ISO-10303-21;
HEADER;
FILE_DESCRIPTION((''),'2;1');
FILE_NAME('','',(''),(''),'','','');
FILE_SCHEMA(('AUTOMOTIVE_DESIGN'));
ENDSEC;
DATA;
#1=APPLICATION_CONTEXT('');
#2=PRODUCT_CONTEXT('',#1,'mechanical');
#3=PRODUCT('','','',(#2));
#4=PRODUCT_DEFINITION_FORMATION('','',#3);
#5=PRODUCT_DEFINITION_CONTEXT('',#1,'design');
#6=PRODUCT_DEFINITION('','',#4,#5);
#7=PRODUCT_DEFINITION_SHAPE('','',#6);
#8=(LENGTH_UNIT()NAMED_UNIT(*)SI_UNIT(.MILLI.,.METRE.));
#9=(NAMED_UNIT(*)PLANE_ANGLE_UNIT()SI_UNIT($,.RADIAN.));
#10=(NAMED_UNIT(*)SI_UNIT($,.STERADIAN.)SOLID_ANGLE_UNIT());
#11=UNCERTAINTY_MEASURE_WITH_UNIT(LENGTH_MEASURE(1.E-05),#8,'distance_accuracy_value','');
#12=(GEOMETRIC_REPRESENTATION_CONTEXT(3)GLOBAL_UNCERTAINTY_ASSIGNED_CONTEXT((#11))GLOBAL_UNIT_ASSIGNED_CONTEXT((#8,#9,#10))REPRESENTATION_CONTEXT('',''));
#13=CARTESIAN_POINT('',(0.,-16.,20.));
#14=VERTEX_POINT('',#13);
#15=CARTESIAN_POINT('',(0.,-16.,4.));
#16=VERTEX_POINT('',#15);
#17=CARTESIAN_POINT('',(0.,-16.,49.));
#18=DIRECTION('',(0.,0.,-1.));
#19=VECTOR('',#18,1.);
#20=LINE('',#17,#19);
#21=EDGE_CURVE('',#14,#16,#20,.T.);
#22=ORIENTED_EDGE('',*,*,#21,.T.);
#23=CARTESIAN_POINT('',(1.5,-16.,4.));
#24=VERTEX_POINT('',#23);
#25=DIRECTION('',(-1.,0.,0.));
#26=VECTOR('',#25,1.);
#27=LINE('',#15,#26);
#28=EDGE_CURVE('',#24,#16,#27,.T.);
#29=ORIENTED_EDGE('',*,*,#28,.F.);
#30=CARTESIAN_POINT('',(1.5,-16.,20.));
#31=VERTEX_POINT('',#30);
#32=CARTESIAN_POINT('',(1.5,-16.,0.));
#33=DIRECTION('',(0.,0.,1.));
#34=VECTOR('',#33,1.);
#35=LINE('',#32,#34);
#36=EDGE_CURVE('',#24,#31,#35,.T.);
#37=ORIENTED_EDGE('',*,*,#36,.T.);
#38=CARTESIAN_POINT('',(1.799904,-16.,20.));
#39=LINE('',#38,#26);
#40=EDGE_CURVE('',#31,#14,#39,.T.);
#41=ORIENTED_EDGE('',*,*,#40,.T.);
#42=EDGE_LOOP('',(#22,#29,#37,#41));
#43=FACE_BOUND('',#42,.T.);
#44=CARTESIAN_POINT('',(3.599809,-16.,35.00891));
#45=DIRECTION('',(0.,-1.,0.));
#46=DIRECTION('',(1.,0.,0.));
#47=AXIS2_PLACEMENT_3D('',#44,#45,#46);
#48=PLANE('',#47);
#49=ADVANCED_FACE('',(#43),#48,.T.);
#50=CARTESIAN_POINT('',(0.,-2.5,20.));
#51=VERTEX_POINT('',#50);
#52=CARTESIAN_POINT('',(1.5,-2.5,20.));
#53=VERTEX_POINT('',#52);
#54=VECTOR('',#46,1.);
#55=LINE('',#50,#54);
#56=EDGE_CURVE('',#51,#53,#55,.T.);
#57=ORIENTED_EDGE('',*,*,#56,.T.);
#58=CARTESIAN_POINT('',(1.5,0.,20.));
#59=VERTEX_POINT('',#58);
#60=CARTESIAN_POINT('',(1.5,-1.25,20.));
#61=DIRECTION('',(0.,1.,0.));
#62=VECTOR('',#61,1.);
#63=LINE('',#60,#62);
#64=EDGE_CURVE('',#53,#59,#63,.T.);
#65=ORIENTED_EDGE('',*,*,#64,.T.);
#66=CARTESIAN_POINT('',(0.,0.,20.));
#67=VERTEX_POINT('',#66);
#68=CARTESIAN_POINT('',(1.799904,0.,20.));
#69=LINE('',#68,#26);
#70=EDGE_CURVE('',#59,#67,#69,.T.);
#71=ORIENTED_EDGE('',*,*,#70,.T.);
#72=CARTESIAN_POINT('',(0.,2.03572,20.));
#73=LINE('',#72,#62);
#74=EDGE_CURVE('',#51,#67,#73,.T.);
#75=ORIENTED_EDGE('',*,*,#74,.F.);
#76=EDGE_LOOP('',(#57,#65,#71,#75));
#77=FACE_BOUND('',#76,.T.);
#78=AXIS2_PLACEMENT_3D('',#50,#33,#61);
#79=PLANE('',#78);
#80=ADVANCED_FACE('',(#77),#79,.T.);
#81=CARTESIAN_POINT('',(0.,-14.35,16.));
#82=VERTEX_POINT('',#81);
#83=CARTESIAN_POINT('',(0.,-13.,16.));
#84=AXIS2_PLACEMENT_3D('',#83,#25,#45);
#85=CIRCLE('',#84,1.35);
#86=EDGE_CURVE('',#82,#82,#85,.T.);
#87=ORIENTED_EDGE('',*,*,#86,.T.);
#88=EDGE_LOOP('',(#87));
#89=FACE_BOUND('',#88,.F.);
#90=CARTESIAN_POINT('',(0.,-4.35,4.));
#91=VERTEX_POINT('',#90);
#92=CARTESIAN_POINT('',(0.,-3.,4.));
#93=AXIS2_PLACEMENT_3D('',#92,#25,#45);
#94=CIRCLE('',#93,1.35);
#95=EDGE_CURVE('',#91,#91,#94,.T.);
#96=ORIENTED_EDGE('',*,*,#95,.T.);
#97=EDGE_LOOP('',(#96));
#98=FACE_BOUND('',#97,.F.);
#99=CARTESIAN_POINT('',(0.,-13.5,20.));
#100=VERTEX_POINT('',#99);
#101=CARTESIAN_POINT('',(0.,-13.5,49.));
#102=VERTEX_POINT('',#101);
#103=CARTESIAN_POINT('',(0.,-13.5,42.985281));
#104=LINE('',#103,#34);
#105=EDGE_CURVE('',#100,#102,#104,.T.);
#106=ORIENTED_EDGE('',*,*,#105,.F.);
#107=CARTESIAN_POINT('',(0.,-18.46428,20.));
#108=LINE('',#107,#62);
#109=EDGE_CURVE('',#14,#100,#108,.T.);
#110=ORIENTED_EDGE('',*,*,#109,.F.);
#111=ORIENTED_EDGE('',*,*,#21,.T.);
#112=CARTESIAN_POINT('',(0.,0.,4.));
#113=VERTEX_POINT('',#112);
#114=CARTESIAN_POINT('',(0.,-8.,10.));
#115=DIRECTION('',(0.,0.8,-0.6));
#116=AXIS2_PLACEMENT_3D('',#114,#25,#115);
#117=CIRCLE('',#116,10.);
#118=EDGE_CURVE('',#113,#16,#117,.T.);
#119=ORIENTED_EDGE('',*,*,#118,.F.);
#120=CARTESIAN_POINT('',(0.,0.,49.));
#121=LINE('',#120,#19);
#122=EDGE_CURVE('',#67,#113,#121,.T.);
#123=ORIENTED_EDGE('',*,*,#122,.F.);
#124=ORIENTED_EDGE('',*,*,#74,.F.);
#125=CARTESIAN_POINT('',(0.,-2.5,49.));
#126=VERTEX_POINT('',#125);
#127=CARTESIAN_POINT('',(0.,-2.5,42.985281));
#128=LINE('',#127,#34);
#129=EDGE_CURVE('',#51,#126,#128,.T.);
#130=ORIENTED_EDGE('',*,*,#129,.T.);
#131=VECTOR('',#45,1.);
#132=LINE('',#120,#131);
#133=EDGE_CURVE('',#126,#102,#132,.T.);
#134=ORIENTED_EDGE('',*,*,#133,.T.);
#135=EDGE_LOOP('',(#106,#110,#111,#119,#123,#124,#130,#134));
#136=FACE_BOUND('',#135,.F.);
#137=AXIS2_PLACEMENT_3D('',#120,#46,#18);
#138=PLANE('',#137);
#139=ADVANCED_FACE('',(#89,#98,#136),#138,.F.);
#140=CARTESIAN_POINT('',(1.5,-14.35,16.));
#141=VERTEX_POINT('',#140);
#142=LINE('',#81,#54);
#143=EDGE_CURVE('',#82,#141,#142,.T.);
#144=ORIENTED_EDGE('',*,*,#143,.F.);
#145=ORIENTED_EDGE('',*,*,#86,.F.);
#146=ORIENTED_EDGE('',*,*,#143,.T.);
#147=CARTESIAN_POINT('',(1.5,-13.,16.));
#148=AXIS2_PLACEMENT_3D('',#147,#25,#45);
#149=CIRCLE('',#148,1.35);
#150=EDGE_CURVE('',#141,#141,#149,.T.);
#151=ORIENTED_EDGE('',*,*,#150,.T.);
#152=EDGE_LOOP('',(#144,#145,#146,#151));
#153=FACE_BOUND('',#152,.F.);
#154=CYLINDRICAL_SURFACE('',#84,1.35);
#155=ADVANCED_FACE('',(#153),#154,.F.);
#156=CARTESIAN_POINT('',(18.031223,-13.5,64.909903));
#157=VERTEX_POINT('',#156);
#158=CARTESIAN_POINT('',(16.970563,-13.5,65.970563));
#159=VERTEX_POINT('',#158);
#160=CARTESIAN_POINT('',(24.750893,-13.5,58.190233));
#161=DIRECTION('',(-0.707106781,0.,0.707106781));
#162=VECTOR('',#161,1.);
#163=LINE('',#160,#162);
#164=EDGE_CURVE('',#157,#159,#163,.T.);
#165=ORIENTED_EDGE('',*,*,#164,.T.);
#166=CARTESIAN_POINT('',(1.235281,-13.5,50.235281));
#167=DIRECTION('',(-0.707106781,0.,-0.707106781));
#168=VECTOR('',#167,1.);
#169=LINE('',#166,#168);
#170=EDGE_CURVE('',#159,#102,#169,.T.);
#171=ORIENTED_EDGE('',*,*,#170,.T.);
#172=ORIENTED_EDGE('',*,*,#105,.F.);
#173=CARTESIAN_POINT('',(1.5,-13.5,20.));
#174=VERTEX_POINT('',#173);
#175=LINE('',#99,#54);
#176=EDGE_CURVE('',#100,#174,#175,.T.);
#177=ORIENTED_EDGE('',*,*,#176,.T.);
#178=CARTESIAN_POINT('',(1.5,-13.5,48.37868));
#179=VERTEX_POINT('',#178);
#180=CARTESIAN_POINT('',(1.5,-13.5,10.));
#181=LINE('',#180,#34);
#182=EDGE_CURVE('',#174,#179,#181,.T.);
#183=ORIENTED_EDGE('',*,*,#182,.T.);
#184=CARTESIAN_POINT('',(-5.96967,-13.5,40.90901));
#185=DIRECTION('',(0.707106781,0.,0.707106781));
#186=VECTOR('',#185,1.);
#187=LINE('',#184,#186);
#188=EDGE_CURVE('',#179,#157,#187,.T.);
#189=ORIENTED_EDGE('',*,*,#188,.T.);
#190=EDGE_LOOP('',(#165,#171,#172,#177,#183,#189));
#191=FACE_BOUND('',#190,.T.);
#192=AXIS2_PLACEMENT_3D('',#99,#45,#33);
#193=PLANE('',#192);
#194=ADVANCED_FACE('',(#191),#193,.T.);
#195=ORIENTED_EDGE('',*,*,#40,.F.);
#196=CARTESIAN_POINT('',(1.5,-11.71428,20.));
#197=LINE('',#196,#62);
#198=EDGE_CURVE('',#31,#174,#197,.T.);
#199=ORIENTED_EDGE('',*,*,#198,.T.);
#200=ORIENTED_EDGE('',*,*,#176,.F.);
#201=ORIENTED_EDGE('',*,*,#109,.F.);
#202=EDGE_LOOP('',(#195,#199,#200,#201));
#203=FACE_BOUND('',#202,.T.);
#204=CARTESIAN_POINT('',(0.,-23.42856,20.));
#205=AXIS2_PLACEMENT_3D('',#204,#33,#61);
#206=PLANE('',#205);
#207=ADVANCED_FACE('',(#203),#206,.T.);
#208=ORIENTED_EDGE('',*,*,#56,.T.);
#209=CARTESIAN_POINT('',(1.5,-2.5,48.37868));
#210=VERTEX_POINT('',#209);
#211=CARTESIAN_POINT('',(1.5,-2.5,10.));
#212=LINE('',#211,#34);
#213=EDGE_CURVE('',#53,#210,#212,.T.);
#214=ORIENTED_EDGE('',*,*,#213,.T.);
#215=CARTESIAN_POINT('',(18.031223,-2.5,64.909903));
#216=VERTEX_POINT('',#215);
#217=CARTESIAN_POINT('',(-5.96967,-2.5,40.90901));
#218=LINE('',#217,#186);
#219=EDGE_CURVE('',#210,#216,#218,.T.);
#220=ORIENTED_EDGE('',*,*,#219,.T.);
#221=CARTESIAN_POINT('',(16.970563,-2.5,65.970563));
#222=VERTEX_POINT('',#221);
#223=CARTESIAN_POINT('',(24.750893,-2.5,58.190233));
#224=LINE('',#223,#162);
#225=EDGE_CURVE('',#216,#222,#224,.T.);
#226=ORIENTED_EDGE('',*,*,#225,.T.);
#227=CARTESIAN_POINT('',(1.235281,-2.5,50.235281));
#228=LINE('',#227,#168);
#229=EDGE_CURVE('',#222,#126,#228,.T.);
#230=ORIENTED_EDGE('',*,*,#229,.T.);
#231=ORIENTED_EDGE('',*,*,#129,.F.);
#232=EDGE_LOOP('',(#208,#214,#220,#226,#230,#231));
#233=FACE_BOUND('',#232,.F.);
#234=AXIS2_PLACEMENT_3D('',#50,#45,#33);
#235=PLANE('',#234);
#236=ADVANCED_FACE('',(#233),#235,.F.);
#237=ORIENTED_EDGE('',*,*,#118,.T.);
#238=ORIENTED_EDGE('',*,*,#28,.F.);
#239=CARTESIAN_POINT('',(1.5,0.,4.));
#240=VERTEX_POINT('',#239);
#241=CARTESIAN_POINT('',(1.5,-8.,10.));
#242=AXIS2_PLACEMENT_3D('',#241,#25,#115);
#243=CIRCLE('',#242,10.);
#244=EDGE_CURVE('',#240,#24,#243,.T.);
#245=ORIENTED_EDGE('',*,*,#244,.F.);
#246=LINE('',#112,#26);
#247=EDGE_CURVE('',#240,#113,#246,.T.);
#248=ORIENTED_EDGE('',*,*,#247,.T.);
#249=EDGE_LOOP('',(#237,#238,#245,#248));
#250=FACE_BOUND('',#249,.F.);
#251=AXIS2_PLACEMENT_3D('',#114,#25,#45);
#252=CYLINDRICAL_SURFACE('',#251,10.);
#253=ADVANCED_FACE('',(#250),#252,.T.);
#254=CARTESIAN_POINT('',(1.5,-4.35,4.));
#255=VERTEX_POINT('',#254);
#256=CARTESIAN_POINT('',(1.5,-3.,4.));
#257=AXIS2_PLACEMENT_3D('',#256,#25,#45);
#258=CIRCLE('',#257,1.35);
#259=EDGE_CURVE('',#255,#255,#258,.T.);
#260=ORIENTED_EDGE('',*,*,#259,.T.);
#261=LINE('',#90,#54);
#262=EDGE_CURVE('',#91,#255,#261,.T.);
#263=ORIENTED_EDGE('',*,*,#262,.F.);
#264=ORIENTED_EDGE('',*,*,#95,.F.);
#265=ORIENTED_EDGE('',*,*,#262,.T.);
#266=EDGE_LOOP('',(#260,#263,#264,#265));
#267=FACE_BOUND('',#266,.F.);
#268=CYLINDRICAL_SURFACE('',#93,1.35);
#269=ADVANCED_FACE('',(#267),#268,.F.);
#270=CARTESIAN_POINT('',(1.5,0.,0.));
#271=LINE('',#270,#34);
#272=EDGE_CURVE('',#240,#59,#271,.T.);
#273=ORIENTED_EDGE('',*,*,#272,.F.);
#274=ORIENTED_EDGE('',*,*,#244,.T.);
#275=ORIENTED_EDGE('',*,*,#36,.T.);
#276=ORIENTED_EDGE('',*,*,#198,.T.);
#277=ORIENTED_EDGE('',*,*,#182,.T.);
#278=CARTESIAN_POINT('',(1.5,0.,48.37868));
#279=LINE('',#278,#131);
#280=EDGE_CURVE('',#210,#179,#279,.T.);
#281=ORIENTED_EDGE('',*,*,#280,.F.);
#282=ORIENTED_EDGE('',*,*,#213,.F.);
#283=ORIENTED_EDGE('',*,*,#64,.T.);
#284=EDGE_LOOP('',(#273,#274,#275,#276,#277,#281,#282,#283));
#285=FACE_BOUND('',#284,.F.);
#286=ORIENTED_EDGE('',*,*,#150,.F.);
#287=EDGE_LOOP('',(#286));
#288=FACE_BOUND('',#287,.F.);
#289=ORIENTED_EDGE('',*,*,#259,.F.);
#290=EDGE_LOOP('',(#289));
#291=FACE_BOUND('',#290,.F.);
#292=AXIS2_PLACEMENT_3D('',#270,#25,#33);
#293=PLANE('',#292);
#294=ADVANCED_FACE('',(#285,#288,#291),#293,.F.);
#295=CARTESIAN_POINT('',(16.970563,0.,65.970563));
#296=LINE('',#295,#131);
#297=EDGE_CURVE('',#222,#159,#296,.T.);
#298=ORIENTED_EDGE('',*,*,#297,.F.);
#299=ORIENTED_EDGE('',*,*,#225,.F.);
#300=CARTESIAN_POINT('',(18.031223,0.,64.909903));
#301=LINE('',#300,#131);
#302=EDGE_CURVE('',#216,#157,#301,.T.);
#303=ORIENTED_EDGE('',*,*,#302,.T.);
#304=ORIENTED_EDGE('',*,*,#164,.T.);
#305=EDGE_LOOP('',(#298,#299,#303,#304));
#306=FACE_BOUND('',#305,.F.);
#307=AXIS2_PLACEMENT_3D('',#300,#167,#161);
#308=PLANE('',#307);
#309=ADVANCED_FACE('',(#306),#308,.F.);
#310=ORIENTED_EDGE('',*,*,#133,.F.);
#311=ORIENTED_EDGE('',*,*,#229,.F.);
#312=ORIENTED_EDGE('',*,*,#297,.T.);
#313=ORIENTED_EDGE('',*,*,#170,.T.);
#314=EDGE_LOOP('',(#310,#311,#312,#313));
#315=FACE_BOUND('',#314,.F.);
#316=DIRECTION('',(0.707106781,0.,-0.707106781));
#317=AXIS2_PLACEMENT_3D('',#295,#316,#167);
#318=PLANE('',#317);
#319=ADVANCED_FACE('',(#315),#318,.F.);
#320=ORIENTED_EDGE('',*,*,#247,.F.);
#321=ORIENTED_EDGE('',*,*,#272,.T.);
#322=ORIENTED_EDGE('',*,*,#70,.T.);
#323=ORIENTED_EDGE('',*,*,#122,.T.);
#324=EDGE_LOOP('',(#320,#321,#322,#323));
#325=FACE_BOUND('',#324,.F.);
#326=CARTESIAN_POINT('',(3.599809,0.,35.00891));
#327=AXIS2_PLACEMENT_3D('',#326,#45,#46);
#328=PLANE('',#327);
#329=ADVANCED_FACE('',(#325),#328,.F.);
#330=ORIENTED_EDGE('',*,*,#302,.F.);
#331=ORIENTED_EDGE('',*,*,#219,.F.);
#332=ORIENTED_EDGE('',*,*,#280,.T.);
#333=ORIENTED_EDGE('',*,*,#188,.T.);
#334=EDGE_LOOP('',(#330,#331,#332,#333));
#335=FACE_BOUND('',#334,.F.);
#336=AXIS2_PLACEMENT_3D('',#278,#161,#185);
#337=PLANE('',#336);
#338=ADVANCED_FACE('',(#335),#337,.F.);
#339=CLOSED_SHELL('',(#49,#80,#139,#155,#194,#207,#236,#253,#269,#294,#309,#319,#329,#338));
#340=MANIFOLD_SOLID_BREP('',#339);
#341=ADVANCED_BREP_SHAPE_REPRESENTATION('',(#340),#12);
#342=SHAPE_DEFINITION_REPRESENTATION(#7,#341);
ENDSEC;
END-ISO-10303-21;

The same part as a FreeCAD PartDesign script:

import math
import FreeCAD as App
import Part
import Sketcher
from FreeCAD import Vector
Q = App.Units.Quantity


def add_polygon(sketch, points):
    """Adds a closed chain of lines whose ends are joined by coincident constraints."""
    first, n = sketch.GeometryCount, len(points)
    for a, b in zip(points, points[1:] + points[:1]):
        sketch.addGeometry(Part.LineSegment(App.Vector(*a, 0), App.Vector(*b, 0)), False)
    for i in range(n):
        sketch.addConstraint(Sketcher.Constraint("Coincident", first + i, 2, first + (i + 1) % n, 1))

doc = App.newDocument("Part")
body = doc.addObject("PartDesign::Body", "Body")

# Sketch on XZ plane
sketch1 = body.newObject("Sketcher::SketchObject", "Sketch")
sketch1.AttachmentSupport = (doc.getObject("XZ_Plane"), [""])
sketch1.MapMode = "FlatFace"
add_polygon(sketch1, [(0, 49), (0, 0), (1.5, 0), (1.5, 48.4), (18, 64.9), (17, 66)])  # lines 0-5
sketch1.addConstraint([
    Sketcher.Constraint("Vertical", 0),
    Sketcher.Constraint("Horizontal", 1),
    Sketcher.Constraint("Vertical", 2),
    Sketcher.Constraint("Coincident", 0, 2, -1, 1),
    Sketcher.Constraint("Perpendicular", 3, 4),
    Sketcher.Constraint("Perpendicular", 4, 5),
    Sketcher.Constraint("DistanceY", 0, 2, 0, 1, 49.0),
    Sketcher.Constraint("Angle", 3, Q("45 deg")),
    Sketcher.Constraint("Distance", 5, 24.0),
    Sketcher.Constraint("DistanceX", 1, 1, 1, 2, 1.5),
    Sketcher.Constraint("Distance", 4, 1.5),
])
pad1 = body.newObject("PartDesign::Pad", "Pad")
pad1.Profile = sketch1
pad1.Length = 16

# Sketch on YZ plane
sketch2 = body.newObject("Sketcher::SketchObject", "Sketch001")
sketch2.AttachmentSupport = (doc.getObject("YZ_Plane"), [""])
sketch2.MapMode = "FlatFace"
add_polygon(sketch2, [(-2, 66), (-2, 20), (7, 20), (7, 66)])  # lines 0-3
add_polygon(sketch2, [(-23, 66), (-23, 20), (-14, 20), (-14, 66)])  # lines 4-7
sketch2.addConstraint([
    Sketcher.Constraint("Vertical", 0),
    Sketcher.Constraint("Horizontal", 1),
    Sketcher.Constraint("Vertical", 2),
    Sketcher.Constraint("Horizontal", 3),
    Sketcher.Constraint("Vertical", 4),
    Sketcher.Constraint("Horizontal", 5),
    Sketcher.Constraint("Vertical", 6),
    Sketcher.Constraint("Horizontal", 7),
    Sketcher.Constraint("Horizontal", 1, 2, 4, 2),
    Sketcher.Constraint("Horizontal", 3, 2, 6, 2),
    Sketcher.Constraint("DistanceY", -1, 1, 0, 2, 20.0),
    Sketcher.Constraint("DistanceX", 4, 2, 1, 2, 30.0),
    Sketcher.Constraint("DistanceX", 5, 2, 0, 2, 11.0),
    Sketcher.Constraint("DistanceX", 0, 2, -1, 1, 2.5),
    Sketcher.Constraint("DistanceX", 1, 1, 1, 2, 9.07144),
    Sketcher.Constraint("DistanceY", 0, 2, 0, 1, 45.970563),
])
pocket1 = body.newObject("PartDesign::Pocket", "Pocket")
pocket1.Profile = sketch2
pocket1.Length = 25
pocket1.Reversed = True

# Sketch on YZ plane
sketch3 = body.newObject("Sketcher::SketchObject", "Sketch002")
sketch3.AttachmentSupport = (doc.getObject("YZ_Plane"), [""])
sketch3.MapMode = "FlatFace"
sketch3.addGeometry([
    Part.ArcOfCircle(Part.Circle(Vector(-8, 10, 0), Vector(0, 0, 1), 10), math.radians(180), math.radians(360)),
    Part.LineSegment(Vector(2, 10, 0), Vector(2, -2, 0)),
    Part.LineSegment(Vector(2, -2, 0), Vector(-18, -2, 0)),
    Part.LineSegment(Vector(-18, -2, 0), Vector(-18, 10, 0)),
], False)
sketch3.addConstraint([
    Sketcher.Constraint("Tangent", 0, 2, 1, 1),
    Sketcher.Constraint("Coincident", 1, 2, 2, 1),
    Sketcher.Constraint("Coincident", 2, 2, 3, 1),
    Sketcher.Constraint("Tangent", 3, 2, 0, 1),
    Sketcher.Constraint("Vertical", 1),
    Sketcher.Constraint("Horizontal", 2),
    Sketcher.Constraint("Vertical", 3),
    Sketcher.Constraint("Radius", 0, 10.0),
    Sketcher.Constraint("DistanceY", 1, 2, 1, 1, 12.5),
    Sketcher.Constraint("DistanceX", 0, 3, -1, 1, 8.0),
    Sketcher.Constraint("DistanceY", -1, 1, 0, 3, 10.0),
])
pocket2 = body.newObject("PartDesign::Pocket", "Pocket001")
pocket2.Profile = sketch3
pocket2.Type = "ThroughAll"
pocket2.Reversed = True

# Sketch on YZ plane
sketch4 = body.newObject("Sketcher::SketchObject", "Sketch003")
sketch4.AttachmentSupport = (doc.getObject("YZ_Plane"), [""])
sketch4.MapMode = "FlatFace"
sketch4.addGeometry([
    Part.Circle(Vector(-13, 16, 0), Vector(0, 0, 1), 1.4),
    Part.Circle(Vector(-3, 4, 0), Vector(0, 0, 1), 1.4),
], False)
sketch4.addConstraint([
    Sketcher.Constraint("Equal", 0, 1),
    Sketcher.Constraint("Diameter", 0, 2.7),
    Sketcher.Constraint("DistanceX", 0, 3, -1, 1, 13.0),
    Sketcher.Constraint("DistanceY", -1, 1, 0, 3, 16.0),
    Sketcher.Constraint("DistanceX", 1, 3, -1, 1, 3.0),
    Sketcher.Constraint("DistanceY", -1, 1, 1, 3, 4.0),
])
pocket3 = body.newObject("PartDesign::Pocket", "Pocket002")
pocket3.Profile = sketch4
pocket3.Type = "ThroughAll"
pocket3.Reversed = True

# Sketch on YZ plane
sketch5 = body.newObject("Sketcher::SketchObject", "Sketch004")
sketch5.AttachmentSupport = (doc.getObject("YZ_Plane"), [""])
sketch5.MapMode = "FlatFace"
sketch5.addGeometry([
    Part.Circle(Vector(-13, 16, 0), Vector(0, 0, 1), 1.4),
    Part.Circle(Vector(-3, 4, 0), Vector(0, 0, 1), 1.4),
], False)
sketch5.addConstraint([
    Sketcher.Constraint("Equal", 0, 1),
    Sketcher.Constraint("Diameter", 0, 2.7),
    Sketcher.Constraint("DistanceX", 0, 3, -1, 1, 13.0),
    Sketcher.Constraint("DistanceY", -1, 1, 0, 3, 16.0),
    Sketcher.Constraint("DistanceX", 1, 3, -1, 1, 3.0),
    Sketcher.Constraint("DistanceY", -1, 1, 1, 3, 4.0),
])
pocket4 = body.newObject("PartDesign::Pocket", "Pocket003")
pocket4.Profile = sketch5
pocket4.Type = "ThroughAll"
pocket4.Reversed = True

doc.recompute()
